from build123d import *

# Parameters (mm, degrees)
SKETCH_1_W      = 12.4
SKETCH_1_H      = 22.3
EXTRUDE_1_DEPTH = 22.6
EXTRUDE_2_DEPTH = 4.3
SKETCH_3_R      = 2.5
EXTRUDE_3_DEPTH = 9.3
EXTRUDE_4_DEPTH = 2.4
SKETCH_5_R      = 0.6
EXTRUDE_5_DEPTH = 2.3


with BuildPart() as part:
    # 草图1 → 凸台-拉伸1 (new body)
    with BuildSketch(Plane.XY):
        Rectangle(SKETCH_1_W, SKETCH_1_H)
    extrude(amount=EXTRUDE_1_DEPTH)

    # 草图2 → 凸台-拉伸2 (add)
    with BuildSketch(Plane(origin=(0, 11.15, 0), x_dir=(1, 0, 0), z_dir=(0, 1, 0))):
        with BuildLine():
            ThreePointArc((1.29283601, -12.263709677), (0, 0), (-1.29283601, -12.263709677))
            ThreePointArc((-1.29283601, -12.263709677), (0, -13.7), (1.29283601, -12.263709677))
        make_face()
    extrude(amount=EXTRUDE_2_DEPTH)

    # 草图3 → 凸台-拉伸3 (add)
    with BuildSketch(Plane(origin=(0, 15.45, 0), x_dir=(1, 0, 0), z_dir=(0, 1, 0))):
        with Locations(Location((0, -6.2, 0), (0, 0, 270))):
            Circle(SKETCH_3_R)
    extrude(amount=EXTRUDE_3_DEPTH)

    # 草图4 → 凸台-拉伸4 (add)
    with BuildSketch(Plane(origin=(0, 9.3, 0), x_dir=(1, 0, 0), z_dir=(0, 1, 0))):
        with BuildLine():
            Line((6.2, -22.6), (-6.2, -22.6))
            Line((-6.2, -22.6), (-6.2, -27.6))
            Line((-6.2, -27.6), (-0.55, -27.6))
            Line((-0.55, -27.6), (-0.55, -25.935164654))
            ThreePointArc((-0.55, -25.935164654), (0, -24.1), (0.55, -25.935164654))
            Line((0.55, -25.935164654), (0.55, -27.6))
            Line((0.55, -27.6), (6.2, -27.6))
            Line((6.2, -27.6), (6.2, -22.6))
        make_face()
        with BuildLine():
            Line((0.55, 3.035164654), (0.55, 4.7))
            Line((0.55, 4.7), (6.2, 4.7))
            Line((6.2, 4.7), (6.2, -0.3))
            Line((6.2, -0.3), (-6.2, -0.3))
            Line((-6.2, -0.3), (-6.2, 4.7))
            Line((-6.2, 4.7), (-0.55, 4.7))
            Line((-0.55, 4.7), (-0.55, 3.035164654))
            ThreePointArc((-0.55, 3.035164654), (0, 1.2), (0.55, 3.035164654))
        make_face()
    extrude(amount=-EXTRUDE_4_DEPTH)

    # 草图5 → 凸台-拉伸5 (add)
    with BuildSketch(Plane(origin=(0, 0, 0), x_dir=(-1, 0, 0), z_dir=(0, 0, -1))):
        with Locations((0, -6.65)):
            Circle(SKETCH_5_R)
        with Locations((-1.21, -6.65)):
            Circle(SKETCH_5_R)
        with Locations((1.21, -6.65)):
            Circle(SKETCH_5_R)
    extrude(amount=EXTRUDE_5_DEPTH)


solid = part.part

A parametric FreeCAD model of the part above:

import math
import FreeCAD as App
import Part
import Sketcher

V = App.Vector

doc = App.newDocument("Part")
body = doc.addObject("PartDesign::Body", "Body")

# Sketch on XY plane
sketch1 = body.newObject("Sketcher::SketchObject", "Sketch")
sketch1.AttachmentSupport = (doc.getObject("XY_Plane"), [""])
sketch1.MapMode = "FlatFace"
sketch1.addGeometry([
    Part.LineSegment(V(-6, 11, 0), V(-6, -11, 0)),
    Part.LineSegment(V(-6, -11, 0), V(6, -11, 0)),
    Part.LineSegment(V(6, -11, 0), V(6, 11, 0)),
    Part.LineSegment(V(6, 11, 0), V(-6, 11, 0)),
], False)
sketch1.addConstraint([
    Sketcher.Constraint("Coincident", 0, 2, 1, 1),
    Sketcher.Constraint("Coincident", 1, 2, 2, 1),
    Sketcher.Constraint("Coincident", 2, 2, 3, 1),
    Sketcher.Constraint("Coincident", 3, 2, 0, 1),
    Sketcher.Constraint("Vertical", 0),
    Sketcher.Constraint("Horizontal", 1),
    Sketcher.Constraint("Vertical", 2),
    Sketcher.Constraint("Horizontal", 3),
    Sketcher.Constraint("Symmetric", 0, 2, 2, 2, -1, 1),
    Sketcher.Constraint("DistanceX", 1, 1, 1, 2, 12.4),
    Sketcher.Constraint("DistanceY", 0, 2, 0, 1, 22.3),
])
pad1 = body.newObject("PartDesign::Pad", "Pad")
pad1.Profile = sketch1
pad1.Length = 22.6

# Sketch on XZ plane
sketch2 = body.newObject("Sketcher::SketchObject", "Sketch001")
sketch2.AttachmentSupport = (doc.getObject("XZ_Plane"), [""])
sketch2.MapMode = "FlatFace"
sketch2.AttachmentOffset = App.Placement(V(0, 0, -11.15), App.Rotation())
sketch2.addGeometry([
    Part.ArcOfCircle(Part.Circle(V(0, 6.2, 0), V(0, 0, 1), 6.2), math.radians(102), math.radians(438)),
    Part.ArcOfCircle(Part.Circle(V(0, 12.4, 0), V(0, 0, 1), 1.3), math.radians(-6), math.radians(186)),
], False)
sketch2.addConstraint([
    Sketcher.Constraint("Coincident", 0, 1, 1, 2),
    Sketcher.Constraint("Coincident", 1, 1, 0, 2),
    Sketcher.Constraint("Symmetric", 0, 1, 1, 1, -2),
    Sketcher.Constraint("Radius", 0, 6.2),
    Sketcher.Constraint("Radius", 1, 1.3),
    Sketcher.Constraint("DistanceY", -1, 1, 0, 3, 6.2),
    Sketcher.Constraint("DistanceY", -1, 1, 1, 3, 12.4),
])
pad2 = body.newObject("PartDesign::Pad", "Pad001")
pad2.Profile = sketch2
pad2.Length = 4.3
pad2.Reversed = True

# Sketch on XZ plane
sketch3 = body.newObject("Sketcher::SketchObject", "Sketch002")
sketch3.AttachmentSupport = (doc.getObject("XZ_Plane"), [""])
sketch3.MapMode = "FlatFace"
sketch3.AttachmentOffset = App.Placement(V(0, 0, -15.45), App.Rotation())
sketch3.addGeometry(Part.Circle(V(0, 6.2, 0), V(0, 0, 1), 2.5), False)
sketch3.addConstraint([
    Sketcher.Constraint("PointOnObject", 0, 3, -2),
    Sketcher.Constraint("Diameter", 0, 5.0),
    Sketcher.Constraint("DistanceY", -1, 1, 0, 3, 6.2),
])
pad3 = body.newObject("PartDesign::Pad", "Pad002")
pad3.Profile = sketch3
pad3.Length = 9.3
pad3.Reversed = True

# Sketch on XZ plane
sketch4 = body.newObject("Sketcher::SketchObject", "Sketch003")
sketch4.AttachmentSupport = (doc.getObject("XZ_Plane"), [""])
sketch4.MapMode = "FlatFace"
sketch4.AttachmentOffset = App.Placement(V(0, 0, -9.3), App.Rotation())
sketch4.addGeometry([
    Part.LineSegment(V(6.2, 22.6, 0), V(-6.2, 22.6, 0)),  # 0
    Part.LineSegment(V(-6.2, 22.6, 0), V(-6.2, 27.6, 0)),  # 1
    Part.LineSegment(V(-6.2, 27.6, 0), V(-0.6, 27.6, 0)),  # 2
    Part.LineSegment(V(-0.6, 27.6, 0), V(-0.6, 25.9, 0)),  # 3
    Part.ArcOfCircle(Part.Circle(V(0, 25.1, 0), V(0, 0, 1), 1), math.radians(123), math.radians(417)),  # 4
    Part.LineSegment(V(0.6, 25.9, 0), V(0.6, 27.6, 0)),  # 5
    Part.LineSegment(V(0.6, 27.6, 0), V(6.2, 27.6, 0)),  # 6
    Part.LineSegment(V(6.2, 27.6, 0), V(6.2, 22.6, 0)),  # 7
    Part.LineSegment(V(0.6, -4.7, 0), V(0.6, -3, 0)),  # 8
    Part.ArcOfCircle(Part.Circle(V(0, -2.2, 0), V(0, 0, 1), 1), math.radians(-57), math.radians(237)),  # 9
    Part.LineSegment(V(-0.6, -3, 0), V(-0.6, -4.7, 0)),  # 10
    Part.LineSegment(V(-0.6, -4.7, 0), V(-6.2, -4.7, 0)),  # 11
    Part.LineSegment(V(-6.2, -4.7, 0), V(-6.2, 0.3, 0)),  # 12
    Part.LineSegment(V(-6.2, 0.3, 0), V(6.2, 0.3, 0)),  # 13
    Part.LineSegment(V(6.2, 0.3, 0), V(6.2, -4.7, 0)),  # 14
    Part.LineSegment(V(6.2, -4.7, 0), V(0.6, -4.7, 0)),  # 15
], False)
sketch4.addConstraint([
    Sketcher.Constraint("Coincident", 0, 2, 1, 1),
    Sketcher.Constraint("Coincident", 1, 2, 2, 1),
    Sketcher.Constraint("Coincident", 2, 2, 3, 1),
    Sketcher.Constraint("Coincident", 3, 2, 4, 1),
    Sketcher.Constraint("Coincident", 4, 2, 5, 1),
    Sketcher.Constraint("Coincident", 5, 2, 6, 1),
    Sketcher.Constraint("Coincident", 6, 2, 7, 1),
    Sketcher.Constraint("Coincident", 7, 2, 0, 1),
    Sketcher.Constraint("Coincident", 8, 2, 9, 1),
    Sketcher.Constraint("Coincident", 9, 2, 10, 1),
    Sketcher.Constraint("Coincident", 10, 2, 11, 1),
    Sketcher.Constraint("Coincident", 11, 2, 12, 1),
    Sketcher.Constraint("Coincident", 12, 2, 13, 1),
    Sketcher.Constraint("Coincident", 13, 2, 14, 1),
    Sketcher.Constraint("Coincident", 14, 2, 15, 1),
    Sketcher.Constraint("Coincident", 15, 2, 8, 1),
    Sketcher.Constraint("Horizontal", 0),
    Sketcher.Constraint("Vertical", 1),
    Sketcher.Constraint("Horizontal", 2),
    Sketcher.Constraint("Vertical", 3),
    Sketcher.Constraint("Vertical", 5),
    Sketcher.Constraint("Horizontal", 6),
    Sketcher.Constraint("Vertical", 7),
    Sketcher.Constraint("Vertical", 8),
    Sketcher.Constraint("Vertical", 10),
    Sketcher.Constraint("Horizontal", 11),
    Sketcher.Constraint("Vertical", 12),
    Sketcher.Constraint("Horizontal", 13),
    Sketcher.Constraint("Vertical", 14),
    Sketcher.Constraint("Horizontal", 15),
    Sketcher.Constraint("Equal", 4, 9),
    Sketcher.Constraint("Symmetric", 3, 2, 4, 2, -2),
    Sketcher.Constraint("Symmetric", 1, 2, 6, 2, -2),
    Sketcher.Constraint("Symmetric", 8, 2, 9, 2, -2),
    Sketcher.Constraint("Symmetric", 11, 2, 14, 2, -2),
    Sketcher.Constraint("Vertical", 5, 2, 8, 2),
    Sketcher.Constraint("Vertical", 1, 2, 11, 2),
    Sketcher.Constraint("Equal", 5, 8),
    Sketcher.Constraint("Equal", 7, 12),
    Sketcher.Constraint("Radius", 4, 1.0),
    Sketcher.Constraint("DistanceY", 1, 1, 1, 2, 5.0),
    Sketcher.Constraint("DistanceX", 0, 2, 0, 1, 12.4),
    Sketcher.Constraint("DistanceX", 2, 1, 2, 2, 5.65),
    Sketcher.Constraint("DistanceY", -1, 1, 4, 3, 25.1),
    Sketcher.Constraint("DistanceY", 9, 3, -1, 1, 2.2),
    Sketcher.Constraint("DistanceY", -1, 1, 0, 2, 22.6),
])
pad4 = body.newObject("PartDesign::Pad", "Pad003")
pad4.Profile = sketch4
pad4.Length = 2.4

# Sketch on XY plane
sketch5 = body.newObject("Sketcher::SketchObject", "Sketch004")
sketch5.AttachmentSupport = (doc.getObject("XY_Plane"), [""])
sketch5.MapMode = "FlatFace"
sketch5.addGeometry([
    Part.Circle(V(0, -6.7, 0), V(0, 0, 1), 0.6),
    Part.Circle(V(1.2, -6.7, 0), V(0, 0, 1), 0.6),
    Part.Circle(V(-1.2, -6.7, 0), V(0, 0, 1), 0.6),
], False)
sketch5.addConstraint([
    Sketcher.Constraint("Equal", 0, 1),
    Sketcher.Constraint("Equal", 1, 2),
    Sketcher.Constraint("Symmetric", 1, 3, 2, 3, -2),
    Sketcher.Constraint("PointOnObject", 0, 3, -2),
    Sketcher.Constraint("Horizontal", 0, 3, 1, 3),
    Sketcher.Constraint("Diameter", 0, 1.2),
    Sketcher.Constraint("DistanceY", 0, 3, -1, 1, 6.65),
    Sketcher.Constraint("DistanceX", -1, 1, 1, 3, 1.21),
])
pad5 = body.newObject("PartDesign::Pad", "Pad004")
pad5.Profile = sketch5
pad5.Length = 2.3
pad5.Reversed = True

doc.recompute()
